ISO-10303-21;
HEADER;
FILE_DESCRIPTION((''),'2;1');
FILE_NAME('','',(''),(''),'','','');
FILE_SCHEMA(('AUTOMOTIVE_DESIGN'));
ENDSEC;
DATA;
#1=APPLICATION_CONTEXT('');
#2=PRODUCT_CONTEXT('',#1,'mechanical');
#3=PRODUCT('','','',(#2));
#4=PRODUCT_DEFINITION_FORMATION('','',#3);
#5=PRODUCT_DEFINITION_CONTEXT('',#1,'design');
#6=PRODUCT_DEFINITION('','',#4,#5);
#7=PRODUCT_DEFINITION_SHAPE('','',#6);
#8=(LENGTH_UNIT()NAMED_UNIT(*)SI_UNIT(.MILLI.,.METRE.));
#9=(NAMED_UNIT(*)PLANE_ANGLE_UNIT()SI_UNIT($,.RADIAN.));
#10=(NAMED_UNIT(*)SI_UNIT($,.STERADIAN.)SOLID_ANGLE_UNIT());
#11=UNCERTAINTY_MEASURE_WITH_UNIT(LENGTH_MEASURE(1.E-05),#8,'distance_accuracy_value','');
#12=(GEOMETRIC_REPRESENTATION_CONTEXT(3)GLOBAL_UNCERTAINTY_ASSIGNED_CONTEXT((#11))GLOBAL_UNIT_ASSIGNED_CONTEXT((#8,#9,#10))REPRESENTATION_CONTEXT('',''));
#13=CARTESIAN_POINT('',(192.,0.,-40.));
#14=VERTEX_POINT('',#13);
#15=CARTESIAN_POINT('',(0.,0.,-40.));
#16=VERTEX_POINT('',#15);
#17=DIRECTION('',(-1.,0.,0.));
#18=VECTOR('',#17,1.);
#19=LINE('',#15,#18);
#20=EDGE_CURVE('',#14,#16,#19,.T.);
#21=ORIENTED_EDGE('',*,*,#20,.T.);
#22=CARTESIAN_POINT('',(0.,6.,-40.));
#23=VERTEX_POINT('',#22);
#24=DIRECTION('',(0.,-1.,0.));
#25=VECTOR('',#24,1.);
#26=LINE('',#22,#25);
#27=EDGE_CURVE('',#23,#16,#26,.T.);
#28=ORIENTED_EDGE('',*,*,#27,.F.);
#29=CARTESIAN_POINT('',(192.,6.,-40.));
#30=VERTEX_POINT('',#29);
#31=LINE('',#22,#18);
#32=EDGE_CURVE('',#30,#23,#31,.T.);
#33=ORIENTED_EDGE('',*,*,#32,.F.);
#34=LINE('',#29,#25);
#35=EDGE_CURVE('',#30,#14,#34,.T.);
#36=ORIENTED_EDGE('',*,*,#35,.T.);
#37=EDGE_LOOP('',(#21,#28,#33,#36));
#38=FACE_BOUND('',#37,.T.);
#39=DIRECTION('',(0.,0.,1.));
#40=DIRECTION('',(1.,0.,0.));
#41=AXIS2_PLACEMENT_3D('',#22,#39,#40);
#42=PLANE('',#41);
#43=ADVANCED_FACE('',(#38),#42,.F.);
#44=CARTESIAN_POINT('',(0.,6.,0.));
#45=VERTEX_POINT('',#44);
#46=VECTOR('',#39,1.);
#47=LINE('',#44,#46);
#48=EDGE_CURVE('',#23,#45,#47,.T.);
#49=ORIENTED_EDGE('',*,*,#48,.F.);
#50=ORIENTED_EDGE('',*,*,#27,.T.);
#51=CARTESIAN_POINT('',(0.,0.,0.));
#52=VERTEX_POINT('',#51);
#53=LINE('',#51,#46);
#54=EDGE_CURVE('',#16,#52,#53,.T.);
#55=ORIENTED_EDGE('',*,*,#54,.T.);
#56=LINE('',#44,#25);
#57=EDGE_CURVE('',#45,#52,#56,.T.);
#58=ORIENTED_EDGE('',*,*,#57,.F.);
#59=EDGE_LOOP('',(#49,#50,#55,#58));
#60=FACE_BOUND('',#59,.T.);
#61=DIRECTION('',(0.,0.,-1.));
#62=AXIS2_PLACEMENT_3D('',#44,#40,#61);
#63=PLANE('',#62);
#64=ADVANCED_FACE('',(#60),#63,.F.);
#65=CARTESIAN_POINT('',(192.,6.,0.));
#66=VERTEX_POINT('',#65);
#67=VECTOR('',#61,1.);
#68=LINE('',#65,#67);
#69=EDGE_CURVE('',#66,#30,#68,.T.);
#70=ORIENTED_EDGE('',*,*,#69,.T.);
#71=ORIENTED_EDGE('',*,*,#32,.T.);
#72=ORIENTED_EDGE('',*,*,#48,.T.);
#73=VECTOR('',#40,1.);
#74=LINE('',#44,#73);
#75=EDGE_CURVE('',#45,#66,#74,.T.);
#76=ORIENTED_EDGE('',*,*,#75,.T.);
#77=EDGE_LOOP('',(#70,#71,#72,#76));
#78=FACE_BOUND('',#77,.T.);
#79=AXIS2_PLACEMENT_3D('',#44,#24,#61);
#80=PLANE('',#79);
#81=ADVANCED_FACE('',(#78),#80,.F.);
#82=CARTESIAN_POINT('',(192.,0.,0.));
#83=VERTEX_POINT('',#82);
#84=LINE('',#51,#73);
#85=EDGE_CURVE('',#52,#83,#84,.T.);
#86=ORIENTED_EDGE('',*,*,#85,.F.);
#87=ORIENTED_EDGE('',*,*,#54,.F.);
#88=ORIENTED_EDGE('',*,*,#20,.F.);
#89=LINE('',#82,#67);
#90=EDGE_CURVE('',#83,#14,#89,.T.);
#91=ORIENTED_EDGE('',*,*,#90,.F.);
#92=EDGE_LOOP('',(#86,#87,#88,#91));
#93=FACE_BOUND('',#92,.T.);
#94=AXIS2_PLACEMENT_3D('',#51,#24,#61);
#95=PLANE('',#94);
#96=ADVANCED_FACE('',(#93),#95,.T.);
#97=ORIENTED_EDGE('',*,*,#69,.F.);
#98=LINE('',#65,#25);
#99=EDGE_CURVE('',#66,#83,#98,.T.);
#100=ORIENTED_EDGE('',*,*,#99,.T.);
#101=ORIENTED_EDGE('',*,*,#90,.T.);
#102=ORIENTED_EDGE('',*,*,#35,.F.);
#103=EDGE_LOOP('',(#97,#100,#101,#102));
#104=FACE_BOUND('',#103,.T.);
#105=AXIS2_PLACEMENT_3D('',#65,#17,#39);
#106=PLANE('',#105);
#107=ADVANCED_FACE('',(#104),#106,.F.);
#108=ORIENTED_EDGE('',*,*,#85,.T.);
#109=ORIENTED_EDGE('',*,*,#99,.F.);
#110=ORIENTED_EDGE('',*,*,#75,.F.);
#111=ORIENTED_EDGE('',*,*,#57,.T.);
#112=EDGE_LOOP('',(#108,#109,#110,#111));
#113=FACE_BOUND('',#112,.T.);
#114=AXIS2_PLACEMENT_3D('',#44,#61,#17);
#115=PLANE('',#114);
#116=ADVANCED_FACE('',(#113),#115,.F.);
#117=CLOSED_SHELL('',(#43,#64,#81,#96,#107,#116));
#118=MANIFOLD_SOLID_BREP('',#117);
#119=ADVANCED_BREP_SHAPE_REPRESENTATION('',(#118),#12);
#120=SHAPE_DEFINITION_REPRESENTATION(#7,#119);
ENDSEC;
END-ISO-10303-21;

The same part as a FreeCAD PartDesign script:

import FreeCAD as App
import Part
import Sketcher
Q = App.Units.Quantity

doc = App.newDocument("Part")
body = doc.addObject("PartDesign::Body", "Body")

sketch1 = body.newObject("Sketcher::SketchObject", "Sketch")
sketch1.AttachmentSupport = (doc.getObject("XZ_Plane"), [""])
sketch1.MapMode = "FlatFace"
sketch1.addGeometry(Part.LineSegment(App.Vector(0, -40, 0), App.Vector(0, 0, 0)), False)
sketch1.addGeometry(Part.LineSegment(App.Vector(0, 0, 0), App.Vector(192, 0, 0)), False)
sketch1.addGeometry(Part.LineSegment(App.Vector(192, 0, 0), App.Vector(192, -40, 0)), False)
sketch1.addGeometry(Part.LineSegment(App.Vector(192, -40, 0), App.Vector(0, -40, 0)), False)
sketch1.addConstraint(Sketcher.Constraint("Coincident", 0, 2, 1, 1))
sketch1.addConstraint(Sketcher.Constraint("Coincident", 1, 2, 2, 1))
sketch1.addConstraint(Sketcher.Constraint("Coincident", 2, 2, 3, 1))
sketch1.addConstraint(Sketcher.Constraint("Coincident", 3, 2, 0, 1))
sketch1.addConstraint(Sketcher.Constraint("Vertical", 0))
sketch1.addConstraint(Sketcher.Constraint("Horizontal", 1))
sketch1.addConstraint(Sketcher.Constraint("Vertical", 2))
sketch1.addConstraint(Sketcher.Constraint("Horizontal", 3))
sketch1.addConstraint(Sketcher.Constraint("Coincident", 0, 2, -1, 1))
sketch1.addConstraint(Sketcher.Constraint("DistanceX", 1, 1, 1, 2, Q("192 mm")))
sketch1.addConstraint(Sketcher.Constraint("DistanceY", 0, 1, 0, 2, Q("40 mm")))
pad1 = body.newObject("PartDesign::Pad", "Pad")
pad1.Profile = sketch1
pad1.Length = 6
pad1.Reversed = True

doc.recompute()
